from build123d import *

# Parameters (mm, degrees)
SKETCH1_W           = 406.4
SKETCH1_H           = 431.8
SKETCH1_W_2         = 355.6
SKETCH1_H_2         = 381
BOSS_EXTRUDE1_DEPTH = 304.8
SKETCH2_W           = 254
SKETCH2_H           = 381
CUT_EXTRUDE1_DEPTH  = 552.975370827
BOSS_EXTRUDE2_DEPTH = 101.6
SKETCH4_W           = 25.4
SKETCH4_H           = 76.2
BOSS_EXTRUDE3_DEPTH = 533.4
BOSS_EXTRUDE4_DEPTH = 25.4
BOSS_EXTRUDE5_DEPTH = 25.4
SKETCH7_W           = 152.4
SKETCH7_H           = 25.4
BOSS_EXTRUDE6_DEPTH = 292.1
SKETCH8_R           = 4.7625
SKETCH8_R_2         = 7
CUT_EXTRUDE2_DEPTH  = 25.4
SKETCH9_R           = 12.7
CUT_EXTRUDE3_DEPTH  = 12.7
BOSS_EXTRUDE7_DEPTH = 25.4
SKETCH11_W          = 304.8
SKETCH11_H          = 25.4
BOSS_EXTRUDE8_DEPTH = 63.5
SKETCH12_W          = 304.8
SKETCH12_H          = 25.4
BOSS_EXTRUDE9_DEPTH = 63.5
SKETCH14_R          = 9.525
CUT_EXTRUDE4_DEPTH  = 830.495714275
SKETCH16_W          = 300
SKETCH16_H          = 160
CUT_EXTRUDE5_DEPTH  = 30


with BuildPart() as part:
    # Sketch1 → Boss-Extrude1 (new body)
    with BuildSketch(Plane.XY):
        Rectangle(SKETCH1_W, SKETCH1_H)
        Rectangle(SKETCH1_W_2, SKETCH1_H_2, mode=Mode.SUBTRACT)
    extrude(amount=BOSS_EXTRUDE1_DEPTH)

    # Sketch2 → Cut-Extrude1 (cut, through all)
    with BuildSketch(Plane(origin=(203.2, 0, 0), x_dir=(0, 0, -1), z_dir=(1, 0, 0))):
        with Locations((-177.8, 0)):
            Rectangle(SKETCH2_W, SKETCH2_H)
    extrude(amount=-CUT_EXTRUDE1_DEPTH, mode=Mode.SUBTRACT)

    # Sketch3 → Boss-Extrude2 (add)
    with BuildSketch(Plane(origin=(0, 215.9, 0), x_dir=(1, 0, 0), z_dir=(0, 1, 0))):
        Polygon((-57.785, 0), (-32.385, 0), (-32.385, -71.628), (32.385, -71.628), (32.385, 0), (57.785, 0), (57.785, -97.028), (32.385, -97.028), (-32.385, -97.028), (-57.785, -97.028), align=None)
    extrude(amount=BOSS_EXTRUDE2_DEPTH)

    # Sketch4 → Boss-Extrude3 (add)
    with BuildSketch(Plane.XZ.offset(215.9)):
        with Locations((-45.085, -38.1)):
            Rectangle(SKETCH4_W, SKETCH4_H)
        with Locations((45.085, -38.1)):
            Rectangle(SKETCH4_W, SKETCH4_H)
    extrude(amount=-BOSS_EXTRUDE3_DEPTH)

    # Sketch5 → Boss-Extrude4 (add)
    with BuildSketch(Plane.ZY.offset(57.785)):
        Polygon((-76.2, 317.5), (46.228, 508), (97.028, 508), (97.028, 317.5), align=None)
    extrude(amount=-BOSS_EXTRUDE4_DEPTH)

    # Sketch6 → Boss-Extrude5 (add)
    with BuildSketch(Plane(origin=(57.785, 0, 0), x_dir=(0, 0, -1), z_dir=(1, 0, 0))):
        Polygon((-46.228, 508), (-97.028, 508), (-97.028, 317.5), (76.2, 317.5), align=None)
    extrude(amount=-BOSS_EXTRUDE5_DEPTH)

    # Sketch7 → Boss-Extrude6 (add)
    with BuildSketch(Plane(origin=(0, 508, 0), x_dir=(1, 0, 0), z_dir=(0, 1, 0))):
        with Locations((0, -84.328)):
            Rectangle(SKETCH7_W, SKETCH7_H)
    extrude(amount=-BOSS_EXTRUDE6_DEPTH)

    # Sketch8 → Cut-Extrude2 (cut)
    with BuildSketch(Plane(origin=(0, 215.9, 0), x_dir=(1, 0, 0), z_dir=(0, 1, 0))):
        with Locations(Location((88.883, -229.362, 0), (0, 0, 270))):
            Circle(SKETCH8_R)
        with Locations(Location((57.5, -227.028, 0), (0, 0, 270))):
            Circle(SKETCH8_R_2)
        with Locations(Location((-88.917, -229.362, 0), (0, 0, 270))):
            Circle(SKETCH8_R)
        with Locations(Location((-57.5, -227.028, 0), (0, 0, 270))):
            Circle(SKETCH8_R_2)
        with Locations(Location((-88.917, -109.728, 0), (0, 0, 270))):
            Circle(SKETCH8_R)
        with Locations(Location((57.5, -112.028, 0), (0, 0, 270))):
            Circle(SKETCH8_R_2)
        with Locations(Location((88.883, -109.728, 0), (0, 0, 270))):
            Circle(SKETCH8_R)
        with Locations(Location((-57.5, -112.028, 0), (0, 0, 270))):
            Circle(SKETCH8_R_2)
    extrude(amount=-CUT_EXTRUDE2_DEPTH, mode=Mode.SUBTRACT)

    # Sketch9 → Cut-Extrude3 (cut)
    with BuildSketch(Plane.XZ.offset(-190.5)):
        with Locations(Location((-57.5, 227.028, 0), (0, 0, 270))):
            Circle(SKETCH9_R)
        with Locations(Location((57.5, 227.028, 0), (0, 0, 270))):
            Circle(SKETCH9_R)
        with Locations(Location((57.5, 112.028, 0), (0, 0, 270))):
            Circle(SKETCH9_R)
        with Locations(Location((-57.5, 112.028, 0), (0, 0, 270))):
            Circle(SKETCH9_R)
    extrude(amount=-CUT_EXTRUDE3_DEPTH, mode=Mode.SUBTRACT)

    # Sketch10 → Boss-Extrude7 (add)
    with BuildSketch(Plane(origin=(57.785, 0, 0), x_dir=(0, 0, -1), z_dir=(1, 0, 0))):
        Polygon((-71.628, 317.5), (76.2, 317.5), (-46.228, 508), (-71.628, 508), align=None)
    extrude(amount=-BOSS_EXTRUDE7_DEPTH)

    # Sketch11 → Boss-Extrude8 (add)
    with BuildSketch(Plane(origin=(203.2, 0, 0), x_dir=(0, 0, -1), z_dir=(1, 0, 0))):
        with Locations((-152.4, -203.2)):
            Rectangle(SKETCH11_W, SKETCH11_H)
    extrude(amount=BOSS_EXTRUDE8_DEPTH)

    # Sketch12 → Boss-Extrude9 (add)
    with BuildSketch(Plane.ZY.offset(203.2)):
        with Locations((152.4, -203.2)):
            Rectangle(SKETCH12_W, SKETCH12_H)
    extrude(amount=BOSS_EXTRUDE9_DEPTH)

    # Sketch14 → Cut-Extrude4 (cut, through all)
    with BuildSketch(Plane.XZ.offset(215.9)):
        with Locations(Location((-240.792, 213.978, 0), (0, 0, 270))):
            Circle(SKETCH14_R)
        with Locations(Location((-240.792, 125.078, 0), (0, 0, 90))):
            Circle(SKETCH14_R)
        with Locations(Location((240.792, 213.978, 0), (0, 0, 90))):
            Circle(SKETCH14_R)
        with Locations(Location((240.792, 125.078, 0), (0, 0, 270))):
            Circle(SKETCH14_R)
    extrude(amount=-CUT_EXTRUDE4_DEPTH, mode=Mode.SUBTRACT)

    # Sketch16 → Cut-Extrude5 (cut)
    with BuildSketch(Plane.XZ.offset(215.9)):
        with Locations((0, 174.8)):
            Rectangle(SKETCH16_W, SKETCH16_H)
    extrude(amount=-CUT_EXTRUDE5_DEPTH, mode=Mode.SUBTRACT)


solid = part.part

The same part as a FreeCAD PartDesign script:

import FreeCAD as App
import Part
import Sketcher
Q = App.Units.Quantity


def add_polygon(sketch, points):
    """Adds a closed chain of lines whose ends are joined by coincident constraints."""
    first, n = sketch.GeometryCount, len(points)
    for a, b in zip(points, points[1:] + points[:1]):
        sketch.addGeometry(Part.LineSegment(App.Vector(*a, 0), App.Vector(*b, 0)), False)
    for i in range(n):
        sketch.addConstraint(Sketcher.Constraint("Coincident", first + i, 2, first + (i + 1) % n, 1))

doc = App.newDocument("Part")
body = doc.addObject("PartDesign::Body", "Body")

# Sketch on XY plane
sketch1 = body.newObject("Sketcher::SketchObject", "Sketch")
sketch1.AttachmentSupport = (doc.getObject("XY_Plane"), [""])
sketch1.MapMode = "FlatFace"
add_polygon(sketch1, [(-203, 216), (-203, -216), (203, -216), (203, 216)])  # lines 0-3
add_polygon(sketch1, [(178, -190), (-178, -190), (-178, 190), (178, 190)])  # lines 4-7
sketch1.addConstraint([
    Sketcher.Constraint("Vertical", 0),
    Sketcher.Constraint("Horizontal", 1),
    Sketcher.Constraint("Vertical", 2),
    Sketcher.Constraint("Horizontal", 3),
    Sketcher.Constraint("Horizontal", 4),
    Sketcher.Constraint("Vertical", 5),
    Sketcher.Constraint("Horizontal", 6),
    Sketcher.Constraint("Vertical", 7),
    Sketcher.Constraint("Symmetric", 0, 2, 2, 2, -1, 1),
    Sketcher.Constraint("Symmetric", 4, 2, 6, 2, -1, 1),
    Sketcher.Constraint("DistanceX", 1, 1, 1, 2, Q("16 in")),
    Sketcher.Constraint("DistanceX", 4, 2, 4, 1, Q("14 in")),
    Sketcher.Constraint("DistanceY", 0, 2, 0, 1, Q("17 in")),
    Sketcher.Constraint("DistanceY", 5, 1, 5, 2, Q("15 in")),
])
pad1 = body.newObject("PartDesign::Pad", "Pad")
pad1.Profile = sketch1
pad1.Length = Q("12 in")

# Sketch on YZ plane
sketch2 = body.newObject("Sketcher::SketchObject", "Sketch001")
sketch2.AttachmentSupport = (doc.getObject("YZ_Plane"), [""])
sketch2.MapMode = "FlatFace"
sketch2.AttachmentOffset = App.Placement(App.Vector(0, 0, 8 * 25.4), App.Rotation())
add_polygon(sketch2, [(190, 305), (-190, 305), (-190, 51), (190, 51)])  # lines 0-3
sketch2.addConstraint([
    Sketcher.Constraint("Horizontal", 0),
    Sketcher.Constraint("Vertical", 1),
    Sketcher.Constraint("Horizontal", 2),
    Sketcher.Constraint("Vertical", 3),
    Sketcher.Constraint("DistanceX", 0, 2, 0, 1, Q("15 in")),
    Sketcher.Constraint("DistanceY", 1, 2, 1, 1, Q("10 in")),
    Sketcher.Constraint("DistanceY", -1, 1, 0, 2, Q("12 in")),
    Sketcher.Constraint("DistanceX", 0, 2, -1, 1, Q("7.5 in")),
])
pocket1 = body.newObject("PartDesign::Pocket", "Pocket")
pocket1.Profile = sketch2
pocket1.Type = "ThroughAll"

# Sketch on XZ plane
sketch3 = body.newObject("Sketcher::SketchObject", "Sketch002")
sketch3.AttachmentSupport = (doc.getObject("XZ_Plane"), [""])
sketch3.MapMode = "FlatFace"
sketch3.AttachmentOffset = App.Placement(App.Vector(0, 0, -8.5 * 25.4), App.Rotation())
add_polygon(sketch3, [(-32, 0), (-58, 0), (-58, 97), (58, 97), (58, 0), (32, 0), (32, 72), (-32, 72)])  # lines 0-7
sketch3.addConstraint([
    Sketcher.Constraint("Horizontal", 0),
    Sketcher.Constraint("Vertical", 1),
    Sketcher.Constraint("Horizontal", 2),
    Sketcher.Constraint("Vertical", 3),
    Sketcher.Constraint("Horizontal", 4),
    Sketcher.Constraint("Vertical", 5),
    Sketcher.Constraint("Horizontal", 6),
    Sketcher.Constraint("Vertical", 7),
    Sketcher.Constraint("Symmetric", 0, 2, 3, 2, -1, 1),
    Sketcher.Constraint("Symmetric", 4, 2, 7, 2, -2),
    Sketcher.Constraint("DistanceX", 0, 2, 0, 1, Q("1 in")),
    Sketcher.Constraint("DistanceY", 5, 2, 2, 2, Q("1 in")),
    Sketcher.Constraint("DistanceX", 2, 1, 2, 2, Q("4.55 in")),
    Sketcher.Constraint("DistanceY", 1, 1, 1, 2, Q("3.82 in")),
])
pad2 = body.newObject("PartDesign::Pad", "Pad001")
pad2.Profile = sketch3
pad2.Length = Q("4 in")
pad2.Reversed = True

# Sketch on XZ plane
sketch4 = body.newObject("Sketcher::SketchObject", "Sketch003")
sketch4.AttachmentSupport = (doc.getObject("XZ_Plane"), [""])
sketch4.MapMode = "FlatFace"
sketch4.AttachmentOffset = App.Placement(App.Vector(0, 0, 8.5 * 25.4), App.Rotation())
add_polygon(sketch4, [(-58, 0), (-58, -76), (-32, -76), (-32, 0)])  # lines 0-3
add_polygon(sketch4, [(32, 0), (32, -76), (58, -76), (58, 0)])  # lines 4-7
sketch4.addConstraint([
    Sketcher.Constraint("Vertical", 0),
    Sketcher.Constraint("Horizontal", 1),
    Sketcher.Constraint("Vertical", 2),
    Sketcher.Constraint("Horizontal", 3),
    Sketcher.Constraint("Vertical", 4),
    Sketcher.Constraint("Horizontal", 5),
    Sketcher.Constraint("Vertical", 6),
    Sketcher.Constraint("Horizontal", 7),
    Sketcher.Constraint("Symmetric", 3, 2, 6, 2, -1, 1),
    Sketcher.Constraint("Symmetric", 1, 2, 4, 2, -2),
    Sketcher.Constraint("PointOnObject", 2, 2, -1),
    Sketcher.Constraint("DistanceX", 1, 1, 1, 2, Q("1 in")),
    Sketcher.Constraint("DistanceY", 0, 2, 0, 1, Q("3 in")),
    Sketcher.Constraint("DistanceX", 1, 2, 4, 2, Q("2.55 in")),
])
pad3 = body.newObject("PartDesign::Pad", "Pad002")
pad3.Profile = sketch4
pad3.Length = Q("21 in")
pad3.Reversed = True

# Sketch on YZ plane
sketch5 = body.newObject("Sketcher::SketchObject", "Sketch004")
sketch5.AttachmentSupport = (doc.getObject("YZ_Plane"), [""])
sketch5.MapMode = "FlatFace"
sketch5.AttachmentOffset = App.Placement(App.Vector(0, 0, -2.275 * 25.4), App.Rotation())
add_polygon(sketch5, [(508, 46), (318, -76), (318, 97), (508, 97)])  # lines 0-3
sketch5.addConstraint([
    Sketcher.Constraint("Vertical", 1),
    Sketcher.Constraint("Horizontal", 2),
    Sketcher.Constraint("Vertical", 3),
    Sketcher.Constraint("DistanceY", 3, 2, 3, 1, Q("2 in")),
    Sketcher.Constraint("DistanceX", 2, 1, 2, 2, Q("7.5 in")),
    Sketcher.Constraint("DistanceY", 0, 2, -1, 1, Q("3 in")),
    Sketcher.Constraint("DistanceX", -1, 1, 2, 2, Q("20 in")),
    Sketcher.Constraint("DistanceY", 1, 1, 1, 2, Q("6.82 in")),
])
pad4 = body.newObject("PartDesign::Pad", "Pad003")
pad4.Profile = sketch5
pad4.Length = Q("1 in")

# Sketch on YZ plane
sketch6 = body.newObject("Sketcher::SketchObject", "Sketch005")
sketch6.AttachmentSupport = (doc.getObject("YZ_Plane"), [""])
sketch6.MapMode = "FlatFace"
sketch6.AttachmentOffset = App.Placement(App.Vector(0, 0, 2.275 * 25.4), App.Rotation())
add_polygon(sketch6, [(508, 46), (508, 97), (318, 97), (318, -76)])  # lines 0-3
sketch6.addConstraint([
    Sketcher.Constraint("Vertical", 0),
    Sketcher.Constraint("Horizontal", 1),
    Sketcher.Constraint("Vertical", 2),
    Sketcher.Constraint("DistanceY", 0, 1, 0, 2, Q("2 in")),
    Sketcher.Constraint("DistanceX", 1, 2, 1, 1, Q("7.5 in")),
    Sketcher.Constraint("DistanceX", -1, 1, 0, 2, Q("20 in")),
    Sketcher.Constraint("DistanceY", 2, 2, -1, 1, Q("3 in")),
    Sketcher.Constraint("DistanceY", 2, 2, 2, 1, Q("6.82 in")),
])
pad5 = body.newObject("PartDesign::Pad", "Pad004")
pad5.Profile = sketch6
pad5.Length = Q("1 in")
pad5.Reversed = True

# Sketch on XZ plane
sketch7 = body.newObject("Sketcher::SketchObject", "Sketch006")
sketch7.AttachmentSupport = (doc.getObject("XZ_Plane"), [""])
sketch7.MapMode = "FlatFace"
sketch7.AttachmentOffset = App.Placement(App.Vector(0, 0, -20 * 25.4), App.Rotation())
add_polygon(sketch7, [(-76, 72), (-76, 97), (76, 97), (76, 72)])  # lines 0-3
sketch7.addConstraint([
    Sketcher.Constraint("Vertical", 0),
    Sketcher.Constraint("Horizontal", 1),
    Sketcher.Constraint("Vertical", 2),
    Sketcher.Constraint("Horizontal", 3),
    Sketcher.Constraint("DistanceX", 1, 1, 1, 2, Q("6 in")),
    Sketcher.Constraint("DistanceY", 0, 1, 0, 2, Q("1 in")),
    Sketcher.Constraint("DistanceX", 0, 2, -1, 1, Q("3 in")),
    Sketcher.Constraint("DistanceY", -1, 1, 0, 2, Q("3.82 in")),
])
pad6 = body.newObject("PartDesign::Pad", "Pad005")
pad6.Profile = sketch7
pad6.Length = Q("11.5 in")

# Sketch on XZ plane
sketch8 = body.newObject("Sketcher::SketchObject", "Sketch007")
sketch8.AttachmentSupport = (doc.getObject("XZ_Plane"), [""])
sketch8.MapMode = "FlatFace"
sketch8.AttachmentOffset = App.Placement(App.Vector(0, 0, -8.5 * 25.4), App.Rotation())
sketch8.addGeometry([
    Part.Circle(App.Vector(88.9, 229.4, 0), App.Vector(0, 0, 1), 4.8),  # 0
    Part.Circle(App.Vector(57.5, 227, 0), App.Vector(0, 0, 1), 7),  # 1
    Part.Circle(App.Vector(-88.9, 229.4, 0), App.Vector(0, 0, 1), 4.8),  # 2
    Part.Circle(App.Vector(-57.5, 227, 0), App.Vector(0, 0, 1), 7),  # 3
    Part.Circle(App.Vector(-88.9, 109.7, 0), App.Vector(0, 0, 1), 4.8),  # 4
    Part.Circle(App.Vector(57.5, 112, 0), App.Vector(0, 0, 1), 7),  # 5
    Part.Circle(App.Vector(88.9, 109.7, 0), App.Vector(0, 0, 1), 4.8),  # 6
    Part.Circle(App.Vector(-57.5, 112, 0), App.Vector(0, 0, 1), 7),  # 7
], False)
sketch8.addConstraint([
    Sketcher.Constraint("Equal", 0, 2),
    Sketcher.Constraint("Equal", 1, 3),
    Sketcher.Constraint("Equal", 2, 4),
    Sketcher.Constraint("Equal", 3, 5),
    Sketcher.Constraint("Equal", 4, 6),
    Sketcher.Constraint("Equal", 5, 7),
    Sketcher.Constraint("Symmetric", 1, 3, 3, 3, -2),
    Sketcher.Constraint("Symmetric", 5, 3, 7, 3, -2),
    Sketcher.Constraint("Horizontal", 0, 3, 2, 3),
    Sketcher.Constraint("Horizontal", 4, 3, 6, 3),
    Sketcher.Constraint("Vertical", 2, 3, 4, 3),
    Sketcher.Constraint("Vertical", 1, 3, 5, 3),
    Sketcher.Constraint("Vertical", 0, 3, 6, 3),
    Sketcher.Constraint("Diameter", 0, Q("0.375 in")),
    Sketcher.Constraint("DistanceX", 2, 3, 0, 3, Q("7 in")),
    Sketcher.Constraint("Diameter", 1, Q("14 mm")),
    Sketcher.Constraint("DistanceY", -1, 1, 0, 3, Q("9.03 in")),
    Sketcher.Constraint("DistanceY", -1, 1, 4, 3, Q("4.32 in")),
    Sketcher.Constraint("DistanceX", -1, 1, 0, 3, Q("88.883 mm")),
    Sketcher.Constraint("DistanceX", -1, 1, 1, 3, Q("57.5 mm")),
    Sketcher.Constraint("DistanceY", -1, 1, 1, 3, Q("227.028 mm")),
    Sketcher.Constraint("DistanceY", -1, 1, 5, 3, Q("112.028 mm")),
])
pocket2 = body.newObject("PartDesign::Pocket", "Pocket001")
pocket2.Profile = sketch8
pocket2.Length = Q("1 in")
pocket2.Reversed = True

# Sketch on XZ plane
sketch9 = body.newObject("Sketcher::SketchObject", "Sketch008")
sketch9.AttachmentSupport = (doc.getObject("XZ_Plane"), [""])
sketch9.MapMode = "FlatFace"
sketch9.AttachmentOffset = App.Placement(App.Vector(0, 0, -7.5 * 25.4), App.Rotation())
sketch9.addGeometry([
    Part.Circle(App.Vector(-58, 227, 0), App.Vector(0, 0, 1), 13),
    Part.Circle(App.Vector(58, 227, 0), App.Vector(0, 0, 1), 13),
    Part.Circle(App.Vector(58, 112, 0), App.Vector(0, 0, 1), 13),
    Part.Circle(App.Vector(-58, 112, 0), App.Vector(0, 0, 1), 13),
], False)
sketch9.addConstraint([
    Sketcher.Constraint("Equal", 0, 1),
    Sketcher.Constraint("Equal", 1, 2),
    Sketcher.Constraint("Equal", 2, 3),
    Sketcher.Constraint("Symmetric", 0, 3, 1, 3, -2),
    Sketcher.Constraint("Symmetric", 2, 3, 3, 3, -2),
    Sketcher.Constraint("Vertical", 1, 3, 2, 3),
    Sketcher.Constraint("Diameter", 0, Q("1 in")),
    Sketcher.Constraint("DistanceX", 0, 3, -1, 1, Q("57.5 mm")),
    Sketcher.Constraint("DistanceY", -1, 1, 0, 3, Q("227.028 mm")),
    Sketcher.Constraint("DistanceY", -1, 1, 2, 3, Q("112.028 mm")),
])
pocket3 = body.newObject("PartDesign::Pocket", "Pocket002")
pocket3.Profile = sketch9
pocket3.Length = Q("0.5 in")

# Sketch on YZ plane
sketch10 = body.newObject("Sketcher::SketchObject", "Sketch009")
sketch10.AttachmentSupport = (doc.getObject("YZ_Plane"), [""])
sketch10.MapMode = "FlatFace"
sketch10.AttachmentOffset = App.Placement(App.Vector(0, 0, 2.275 * 25.4), App.Rotation())
add_polygon(sketch10, [(318, 72), (318, -76), (508, 46), (508, 72)])  # lines 0-3
sketch10.addConstraint([
    Sketcher.Constraint("Vertical", 0),
    Sketcher.Constraint("Vertical", 2),
    Sketcher.Constraint("Horizontal", 3),
    Sketcher.Constraint("DistanceY", 2, 1, 2, 2, Q("1 in")),
    Sketcher.Constraint("DistanceX", 3, 2, 3, 1, Q("7.5 in")),
    Sketcher.Constraint("DistanceY", 0, 2, -1, 1, Q("3 in")),
    Sketcher.Constraint("DistanceX", -1, 1, 1, 2, Q("20 in")),
    Sketcher.Constraint("DistanceY", 0, 2, 0, 1, Q("5.82 in")),
])
pad7 = body.newObject("PartDesign::Pad", "Pad006")
pad7.Profile = sketch10
pad7.Length = Q("1 in")
pad7.Reversed = True

# Sketch on YZ plane
sketch11 = body.newObject("Sketcher::SketchObject", "Sketch010")
sketch11.AttachmentSupport = (doc.getObject("YZ_Plane"), [""])
sketch11.MapMode = "FlatFace"
sketch11.AttachmentOffset = App.Placement(App.Vector(0, 0, 8 * 25.4), App.Rotation())
add_polygon(sketch11, [(-190, 305), (-216, 305), (-216, 0), (-190, 0)])  # lines 0-3
sketch11.addConstraint([
    Sketcher.Constraint("Horizontal", 0),
    Sketcher.Constraint("Vertical", 1),
    Sketcher.Constraint("Horizontal", 2),
    Sketcher.Constraint("Vertical", 3),
    Sketcher.Constraint("PointOnObject", 1, 2, -1),
    Sketcher.Constraint("DistanceX", 0, 2, 0, 1, Q("1 in")),
    Sketcher.Constraint("DistanceY", 1, 2, 1, 1, Q("12 in")),
    Sketcher.Constraint("DistanceX", 0, 2, -1, 1, Q("8.5 in")),
])
pad8 = body.newObject("PartDesign::Pad", "Pad007")
pad8.Profile = sketch11
pad8.Length = Q("2.5 in")

# Sketch on YZ plane
sketch12 = body.newObject("Sketcher::SketchObject", "Sketch011")
sketch12.AttachmentSupport = (doc.getObject("YZ_Plane"), [""])
sketch12.MapMode = "FlatFace"
sketch12.AttachmentOffset = App.Placement(App.Vector(0, 0, -8 * 25.4), App.Rotation())
add_polygon(sketch12, [(-190, 0), (-216, 0), (-216, 305), (-190, 305)])  # lines 0-3
sketch12.addConstraint([
    Sketcher.Constraint("Horizontal", 0),
    Sketcher.Constraint("Vertical", 1),
    Sketcher.Constraint("Horizontal", 2),
    Sketcher.Constraint("Vertical", 3),
    Sketcher.Constraint("PointOnObject", 0, 2, -1),
    Sketcher.Constraint("DistanceX", 0, 2, 0, 1, Q("1 in")),
    Sketcher.Constraint("DistanceY", 1, 1, 1, 2, Q("12 in")),
    Sketcher.Constraint("DistanceX", 0, 2, -1, 1, Q("8.5 in")),
])
pad9 = body.newObject("PartDesign::Pad", "Pad008")
pad9.Profile = sketch12
pad9.Length = Q("2.5 in")
pad9.Reversed = True

# Sketch on XZ plane
sketch13 = body.newObject("Sketcher::SketchObject", "Sketch012")
sketch13.AttachmentSupport = (doc.getObject("XZ_Plane"), [""])
sketch13.MapMode = "FlatFace"
sketch13.AttachmentOffset = App.Placement(App.Vector(0, 0, 8.5 * 25.4), App.Rotation())
sketch13.addGeometry([
    Part.Circle(App.Vector(-241, 214, 0), App.Vector(0, 0, 1), 10),
    Part.Circle(App.Vector(-241, 125, 0), App.Vector(0, 0, 1), 10),
    Part.Circle(App.Vector(241, 214, 0), App.Vector(0, 0, 1), 10),
    Part.Circle(App.Vector(241, 125, 0), App.Vector(0, 0, 1), 10),
], False)
sketch13.addConstraint([
    Sketcher.Constraint("Equal", 0, 1),
    Sketcher.Constraint("Equal", 1, 2),
    Sketcher.Constraint("Equal", 2, 3),
    Sketcher.Constraint("Symmetric", 0, 3, 2, 3, -2),
    Sketcher.Constraint("Symmetric", 1, 3, 3, 3, -2),
    Sketcher.Constraint("Vertical", 0, 3, 1, 3),
    Sketcher.Constraint("Diameter", 0, Q("0.75 in")),
    Sketcher.Constraint("DistanceY", 1, 3, 0, 3, Q("3.5 in")),
    Sketcher.Constraint("DistanceX", 0, 3, -1, 1, Q("9.48 in")),
    Sketcher.Constraint("DistanceY", -1, 1, 0, 3, Q("213.978 mm")),
])
pocket4 = body.newObject("PartDesign::Pocket", "Pocket003")
pocket4.Profile = sketch13
pocket4.Type = "ThroughAll"

# Sketch on XZ plane
sketch14 = body.newObject("Sketcher::SketchObject", "Sketch013")
sketch14.AttachmentSupport = (doc.getObject("XZ_Plane"), [""])
sketch14.MapMode = "FlatFace"
sketch14.AttachmentOffset = App.Placement(App.Vector(0, 0, 8.5 * 25.4), App.Rotation())
add_polygon(sketch14, [(-150, 255), (-150, 95), (150, 95), (150, 255)])  # lines 0-3
sketch14.addConstraint([
    Sketcher.Constraint("Vertical", 0),
    Sketcher.Constraint("Horizontal", 1),
    Sketcher.Constraint("Vertical", 2),
    Sketcher.Constraint("Horizontal", 3),
    Sketcher.Constraint("DistanceX", 1, 1, 1, 2, Q("300 mm")),
    Sketcher.Constraint("DistanceY", 0, 2, 0, 1, Q("160 mm")),
    Sketcher.Constraint("DistanceX", 0, 2, -1, 1, Q("150 mm")),
    Sketcher.Constraint("DistanceY", -1, 1, 0, 2, Q("94.8 mm")),
])
pocket5 = body.newObject("PartDesign::Pocket", "Pocket004")
pocket5.Profile = sketch14
pocket5.Length = 30

doc.recompute()
